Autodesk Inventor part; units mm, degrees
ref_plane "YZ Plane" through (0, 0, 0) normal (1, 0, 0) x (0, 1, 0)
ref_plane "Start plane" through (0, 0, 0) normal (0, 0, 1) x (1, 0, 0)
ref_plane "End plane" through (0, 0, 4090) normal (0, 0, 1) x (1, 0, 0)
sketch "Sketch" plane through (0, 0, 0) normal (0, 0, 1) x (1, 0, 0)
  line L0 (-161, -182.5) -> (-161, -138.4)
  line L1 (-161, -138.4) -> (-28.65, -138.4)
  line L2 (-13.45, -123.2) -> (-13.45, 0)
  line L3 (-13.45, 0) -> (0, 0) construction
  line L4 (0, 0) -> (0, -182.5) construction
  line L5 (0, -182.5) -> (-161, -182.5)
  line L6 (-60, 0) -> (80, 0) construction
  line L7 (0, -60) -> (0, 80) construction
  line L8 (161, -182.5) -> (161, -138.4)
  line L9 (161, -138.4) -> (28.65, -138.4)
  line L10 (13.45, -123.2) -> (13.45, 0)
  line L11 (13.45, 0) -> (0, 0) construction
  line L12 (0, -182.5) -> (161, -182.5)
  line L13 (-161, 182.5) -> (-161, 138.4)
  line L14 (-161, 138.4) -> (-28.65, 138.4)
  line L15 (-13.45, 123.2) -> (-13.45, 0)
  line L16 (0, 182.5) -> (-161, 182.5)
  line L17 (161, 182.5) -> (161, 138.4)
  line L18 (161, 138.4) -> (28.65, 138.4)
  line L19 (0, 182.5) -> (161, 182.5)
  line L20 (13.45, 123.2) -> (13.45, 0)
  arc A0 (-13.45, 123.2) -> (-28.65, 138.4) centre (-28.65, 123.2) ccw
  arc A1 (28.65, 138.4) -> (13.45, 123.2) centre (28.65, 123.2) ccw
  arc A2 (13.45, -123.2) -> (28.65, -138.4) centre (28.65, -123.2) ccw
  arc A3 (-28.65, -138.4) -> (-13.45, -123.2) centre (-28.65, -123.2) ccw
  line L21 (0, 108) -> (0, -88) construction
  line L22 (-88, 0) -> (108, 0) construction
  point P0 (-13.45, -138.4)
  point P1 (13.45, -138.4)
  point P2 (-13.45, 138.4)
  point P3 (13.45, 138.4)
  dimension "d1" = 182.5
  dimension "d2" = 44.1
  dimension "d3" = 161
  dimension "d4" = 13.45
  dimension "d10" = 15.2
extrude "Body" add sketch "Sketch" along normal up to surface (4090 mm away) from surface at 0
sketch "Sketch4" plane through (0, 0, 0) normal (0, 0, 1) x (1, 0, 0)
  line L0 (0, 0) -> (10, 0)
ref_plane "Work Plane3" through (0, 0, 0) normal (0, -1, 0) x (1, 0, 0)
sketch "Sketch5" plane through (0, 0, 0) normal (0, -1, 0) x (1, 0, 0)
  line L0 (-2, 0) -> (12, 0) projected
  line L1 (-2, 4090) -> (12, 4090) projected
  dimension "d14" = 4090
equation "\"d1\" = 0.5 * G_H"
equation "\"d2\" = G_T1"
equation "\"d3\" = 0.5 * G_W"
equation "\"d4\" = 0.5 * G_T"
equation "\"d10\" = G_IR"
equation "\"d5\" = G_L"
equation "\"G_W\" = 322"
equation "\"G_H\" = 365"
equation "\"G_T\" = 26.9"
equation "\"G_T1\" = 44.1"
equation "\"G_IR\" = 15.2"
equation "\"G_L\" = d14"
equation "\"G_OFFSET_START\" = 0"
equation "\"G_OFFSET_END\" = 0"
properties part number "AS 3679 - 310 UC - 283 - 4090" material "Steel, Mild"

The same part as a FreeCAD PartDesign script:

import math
import FreeCAD as App
import Part
import Sketcher
Q = App.Units.Quantity

doc = App.newDocument("Part")
body = doc.addObject("PartDesign::Body", "Body")

# Sketch on XY plane
sketch1 = doc.addObject("Sketcher::SketchObject", "Sketch")
body.addObject(sketch1)
sketch1.AttachmentSupport = (doc.XY_Plane, [""])
sketch1.MapMode = "FlatFace"
sketch1.addGeometry(Part.LineSegment(App.Vector(-161, -138, 0), App.Vector(-161, -182, 0)), False)
sketch1.addGeometry(Part.LineSegment(App.Vector(-161, -182, 0), App.Vector(161, -182, 0)), False)
sketch1.addGeometry(Part.LineSegment(App.Vector(161, -182, 0), App.Vector(161, -138, 0)), False)
sketch1.addGeometry(Part.LineSegment(App.Vector(161, -138, 0), App.Vector(29, -138, 0)), False)
sketch1.addGeometry(Part.ArcOfCircle(Part.Circle(App.Vector(29, -123, 0), App.Vector(0, 0, 1), 15), math.radians(180), math.radians(270)), False)
sketch1.addGeometry(Part.LineSegment(App.Vector(13, -123, 0), App.Vector(13, 123, 0)), False)
sketch1.addGeometry(Part.ArcOfCircle(Part.Circle(App.Vector(29, 123, 0), App.Vector(0, 0, 1), 15), math.radians(90), math.radians(180)), False)
sketch1.addGeometry(Part.LineSegment(App.Vector(29, 138, 0), App.Vector(161, 138, 0)), False)
sketch1.addGeometry(Part.LineSegment(App.Vector(161, 138, 0), App.Vector(161, 182, 0)), False)
sketch1.addGeometry(Part.LineSegment(App.Vector(161, 182, 0), App.Vector(-161, 182, 0)), False)
sketch1.addGeometry(Part.LineSegment(App.Vector(-161, 182, 0), App.Vector(-161, 138, 0)), False)
sketch1.addGeometry(Part.LineSegment(App.Vector(-161, 138, 0), App.Vector(-29, 138, 0)), False)
sketch1.addGeometry(Part.ArcOfCircle(Part.Circle(App.Vector(-29, 123, 0), App.Vector(0, 0, 1), 15), math.radians(0), math.radians(90)), False)
sketch1.addGeometry(Part.LineSegment(App.Vector(-13, 123, 0), App.Vector(-13, -123, 0)), False)
sketch1.addGeometry(Part.ArcOfCircle(Part.Circle(App.Vector(-29, -123, 0), App.Vector(0, 0, 1), 15), math.radians(-90), math.radians(0)), False)
sketch1.addGeometry(Part.LineSegment(App.Vector(-29, -138, 0), App.Vector(-161, -138, 0)), False)
sketch1.addConstraint(Sketcher.Constraint("Coincident", 0, 2, 1, 1))
sketch1.addConstraint(Sketcher.Constraint("Coincident", 1, 2, 2, 1))
sketch1.addConstraint(Sketcher.Constraint("Coincident", 2, 2, 3, 1))
sketch1.addConstraint(Sketcher.Constraint("Tangent", 3, 2, 4, 2))
sketch1.addConstraint(Sketcher.Constraint("Tangent", 4, 1, 5, 1))
sketch1.addConstraint(Sketcher.Constraint("Tangent", 5, 2, 6, 2))
sketch1.addConstraint(Sketcher.Constraint("Tangent", 6, 1, 7, 1))
sketch1.addConstraint(Sketcher.Constraint("Coincident", 7, 2, 8, 1))
sketch1.addConstraint(Sketcher.Constraint("Coincident", 8, 2, 9, 1))
sketch1.addConstraint(Sketcher.Constraint("Coincident", 9, 2, 10, 1))
sketch1.addConstraint(Sketcher.Constraint("Coincident", 10, 2, 11, 1))
sketch1.addConstraint(Sketcher.Constraint("Tangent", 11, 2, 12, 2))
sketch1.addConstraint(Sketcher.Constraint("Tangent", 12, 1, 13, 1))
sketch1.addConstraint(Sketcher.Constraint("Tangent", 13, 2, 14, 2))
sketch1.addConstraint(Sketcher.Constraint("Tangent", 14, 1, 15, 1))
sketch1.addConstraint(Sketcher.Constraint("Coincident", 15, 2, 0, 1))
sketch1.addConstraint(Sketcher.Constraint("Vertical", 0))
sketch1.addConstraint(Sketcher.Constraint("Horizontal", 1))
sketch1.addConstraint(Sketcher.Constraint("Vertical", 2))
sketch1.addConstraint(Sketcher.Constraint("Horizontal", 3))
sketch1.addConstraint(Sketcher.Constraint("Vertical", 5))
sketch1.addConstraint(Sketcher.Constraint("Horizontal", 7))
sketch1.addConstraint(Sketcher.Constraint("Vertical", 8))
sketch1.addConstraint(Sketcher.Constraint("Horizontal", 9))
sketch1.addConstraint(Sketcher.Constraint("Vertical", 10))
sketch1.addConstraint(Sketcher.Constraint("Horizontal", 11))
sketch1.addConstraint(Sketcher.Constraint("Vertical", 13))
sketch1.addConstraint(Sketcher.Constraint("Horizontal", 15))
sketch1.addConstraint(Sketcher.Constraint("Equal", 4, 6))
sketch1.addConstraint(Sketcher.Constraint("Equal", 6, 12))
sketch1.addConstraint(Sketcher.Constraint("Equal", 12, 14))
sketch1.addConstraint(Sketcher.Constraint("Symmetric", 4, 3, 12, 3, -1, 1))
sketch1.addConstraint(Sketcher.Constraint("Symmetric", 0, 2, 8, 2, -1, 1))
sketch1.addConstraint(Sketcher.Constraint("Symmetric", 7, 2, 10, 2, -2))
sketch1.addConstraint(Sketcher.Constraint("Symmetric", 2, 2, 15, 2, -2))
sketch1.addConstraint(Sketcher.Constraint("Radius", 4, Q("15.2 mm")))
sketch1.addConstraint(Sketcher.Constraint("DistanceY", 0, 2, 0, 1, Q("44.1 mm")))
sketch1.addConstraint(Sketcher.Constraint("DistanceX", 0, 2, -1, 1, Q("161 mm")))
sketch1.addConstraint(Sketcher.Constraint("DistanceY", 0, 2, -1, 1, Q("182.5 mm")))
sketch1.addConstraint(Sketcher.Constraint("DistanceX", -1, 1, 4, 1, Q("13.45 mm")))
pad1 = doc.addObject("PartDesign::Pad", "Pad")
body.addObject(pad1)
pad1.Profile = sketch1
pad1.Length = 4090

doc.recompute()
